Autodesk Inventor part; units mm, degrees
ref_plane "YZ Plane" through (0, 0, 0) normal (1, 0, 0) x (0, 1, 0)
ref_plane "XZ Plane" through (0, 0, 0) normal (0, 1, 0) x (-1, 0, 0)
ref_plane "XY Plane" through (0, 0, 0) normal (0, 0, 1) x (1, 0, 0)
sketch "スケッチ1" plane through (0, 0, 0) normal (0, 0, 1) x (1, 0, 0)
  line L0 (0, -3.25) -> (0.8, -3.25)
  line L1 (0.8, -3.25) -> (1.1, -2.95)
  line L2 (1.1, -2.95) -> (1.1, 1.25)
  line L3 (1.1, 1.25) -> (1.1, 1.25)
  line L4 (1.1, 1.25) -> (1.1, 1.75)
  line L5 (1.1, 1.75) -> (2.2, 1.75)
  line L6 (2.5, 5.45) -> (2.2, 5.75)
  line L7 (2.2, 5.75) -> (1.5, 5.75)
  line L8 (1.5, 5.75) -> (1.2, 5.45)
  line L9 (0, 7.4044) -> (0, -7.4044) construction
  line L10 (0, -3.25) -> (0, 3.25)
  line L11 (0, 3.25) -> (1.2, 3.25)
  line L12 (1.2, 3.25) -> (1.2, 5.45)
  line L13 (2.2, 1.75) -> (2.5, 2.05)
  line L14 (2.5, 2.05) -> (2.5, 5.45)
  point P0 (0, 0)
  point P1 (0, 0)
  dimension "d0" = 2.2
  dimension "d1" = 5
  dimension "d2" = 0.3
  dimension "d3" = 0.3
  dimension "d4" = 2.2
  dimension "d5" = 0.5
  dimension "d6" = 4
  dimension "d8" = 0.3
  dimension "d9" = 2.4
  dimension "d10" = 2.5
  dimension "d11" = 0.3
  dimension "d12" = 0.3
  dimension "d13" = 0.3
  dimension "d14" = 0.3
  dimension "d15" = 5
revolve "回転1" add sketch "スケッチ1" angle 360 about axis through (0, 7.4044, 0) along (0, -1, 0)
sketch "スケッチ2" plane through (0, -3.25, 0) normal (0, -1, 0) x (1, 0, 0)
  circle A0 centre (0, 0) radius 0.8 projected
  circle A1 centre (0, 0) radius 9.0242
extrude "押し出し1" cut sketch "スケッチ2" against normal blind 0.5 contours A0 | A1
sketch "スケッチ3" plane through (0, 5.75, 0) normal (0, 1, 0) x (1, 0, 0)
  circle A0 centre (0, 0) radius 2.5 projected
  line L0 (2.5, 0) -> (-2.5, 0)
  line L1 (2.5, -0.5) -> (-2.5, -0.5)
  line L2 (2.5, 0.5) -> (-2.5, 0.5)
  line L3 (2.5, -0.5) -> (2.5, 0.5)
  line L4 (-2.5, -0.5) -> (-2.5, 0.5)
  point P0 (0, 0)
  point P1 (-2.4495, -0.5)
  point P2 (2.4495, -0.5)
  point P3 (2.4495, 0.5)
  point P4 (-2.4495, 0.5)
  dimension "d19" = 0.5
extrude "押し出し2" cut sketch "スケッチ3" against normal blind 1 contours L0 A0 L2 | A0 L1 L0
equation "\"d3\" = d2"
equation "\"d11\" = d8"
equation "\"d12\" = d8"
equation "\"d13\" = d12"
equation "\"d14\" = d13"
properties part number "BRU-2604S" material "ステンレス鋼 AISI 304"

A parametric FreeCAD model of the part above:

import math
import FreeCAD as App
import Part
import Sketcher


def add_polygon(sketch, points):
    """Adds a closed chain of lines whose ends are joined by coincident constraints."""
    first, n = sketch.GeometryCount, len(points)
    for a, b in zip(points, points[1:] + points[:1]):
        sketch.addGeometry(Part.LineSegment(App.Vector(*a, 0), App.Vector(*b, 0)), False)
    for i in range(n):
        sketch.addConstraint(Sketcher.Constraint("Coincident", first + i, 2, first + (i + 1) % n, 1))

doc = App.newDocument("Part")
params = doc.addObject("Spreadsheet::Sheet", "Params")
for row, (alias, value) in enumerate([
    ("sketch1_height", "2.2 mm"),
    ("sketch1_width", "0.8 mm"),
    ("sketch1_width2", "0.7 mm"),
    ("revolution_angle", "360 deg"),
    ("pocket1_length", "0.5 mm"),
    ("sketch3_radius", "2.5 mm"),
    ("pocket2_length", "1 mm"),
], start=1):
    params.set(f"A{row}", alias)
    params.set(f"B{row}", "=" + value)
    params.setAlias(f"B{row}", alias)

body = doc.addObject("PartDesign::Body", "Body")

sketch1 = body.newObject("Sketcher::SketchObject", "Sketch")
sketch1.AttachmentSupport = (doc.getObject("XY_Plane"), [""])
sketch1.MapMode = "FlatFace"
add_polygon(sketch1, [(0, 3.25), (0, -3.25), (0.8, -3.25), (1.1, -2.95), (1.1, 1.75), (2.2, 1.75), (2.5, 2.05), (2.5, 5.45), (2.2, 5.75), (1.5, 5.75), (1.2, 5.45), (1.2, 3.25)])
sketch1.addConstraint([
    Sketcher.Constraint("Vertical", 0),
    Sketcher.Constraint("Horizontal", 1),
    Sketcher.Constraint("Vertical", 3),
    Sketcher.Constraint("Horizontal", 4),
    Sketcher.Constraint("Vertical", 6),
    Sketcher.Constraint("Horizontal", 8),
    Sketcher.Constraint("Vertical", 10),
    Sketcher.Constraint("Horizontal", 11),
    Sketcher.Constraint("Symmetric", 0, 2, 11, 2, -1, 1),
    Sketcher.Constraint("Parallel", 2, 5),
    Sketcher.Constraint("Perpendicular", 5, 7),
    Sketcher.Constraint("Perpendicular", 7, 9),
    Sketcher.Constraint("Horizontal", 6, 2, 9, 2),
    Sketcher.Constraint("Vertical", 4, 2, 7, 2),
    Sketcher.Constraint("Equal", 2, 5),
    Sketcher.Constraint("Equal", 5, 7),
    Sketcher.Constraint("DistanceY", 10, 2, 10, 1, 2.2),
    Sketcher.Constraint("DistanceY", 1, 2, 3, 2, 5.0),
    Sketcher.Constraint("DistanceY", 4, 2, 7, 2, 4.0),
    Sketcher.Constraint("DistanceX", -1, 1, 4, 2, 2.2),
    Sketcher.Constraint("DistanceX", -1, 1, 5, 2, 2.5),
    Sketcher.Constraint("DistanceX", 1, 1, 1, 2, 0.8),
    Sketcher.Constraint("DistanceX", 8, 2, 8, 1, 0.7),
])
sketch1.setExpression("Constraints[28]", "Params.sketch1_height")
sketch1.setExpression("Constraints[33]", "Params.sketch1_width")
sketch1.setExpression("Constraints[34]", "Params.sketch1_width2")
revolution = body.newObject("PartDesign::Revolution", "Revolution")
revolution.Profile = sketch1
revolution.ReferenceAxis = (sketch1, ["V_Axis"])
revolution.setExpression("Angle", "Params.revolution_angle")

sketch2 = body.newObject("Sketcher::SketchObject", "Sketch001")
sketch2.AttachmentSupport = (doc.getObject("XZ_Plane"), [""])
sketch2.MapMode = "FlatFace"
sketch2.AttachmentOffset = App.Placement(App.Vector(0, 0, 3.25), App.Rotation())
sketch2.addGeometry(Part.Circle(App.Vector(0, 0, 0), App.Vector(0, 0, 1), 9), False)
sketch2.addConstraint([
    Sketcher.Constraint("Coincident", 0, 3, -1, 1),
    Sketcher.Constraint("Diameter", 0, 18.0484),
])
pocket1 = body.newObject("PartDesign::Pocket", "Pocket")
pocket1.Profile = sketch2
pocket1.setExpression("Length", "Params.pocket1_length")

sketch3 = body.newObject("Sketcher::SketchObject", "Sketch002")
sketch3.AttachmentSupport = (doc.getObject("XZ_Plane"), [""])
sketch3.MapMode = "FlatFace"
sketch3.AttachmentOffset = App.Placement(App.Vector(0, 0, -5.75), App.Rotation())
sketch3.addGeometry([
    Part.ArcOfCircle(Part.Circle(App.Vector(0, 0, 0), App.Vector(0, 0, 1), 2.5), math.radians(168), math.radians(192)),
    Part.LineSegment(App.Vector(-2.4, 0.5, 0), App.Vector(2.4, 0.5, 0)),
    Part.ArcOfCircle(Part.Circle(App.Vector(0, 0, 0), App.Vector(0, 0, 1), 2.5), math.radians(-12), math.radians(12)),
    Part.LineSegment(App.Vector(2.4, -0.5, 0), App.Vector(-2.4, -0.5, 0)),
], False)
sketch3.addConstraint([
    Sketcher.Constraint("Coincident", 0, 1, 1, 1),
    Sketcher.Constraint("Coincident", 1, 2, 2, 2),
    Sketcher.Constraint("Coincident", 2, 1, 3, 1),
    Sketcher.Constraint("Coincident", 3, 2, 0, 2),
    Sketcher.Constraint("Horizontal", 1),
    Sketcher.Constraint("Horizontal", 3),
    Sketcher.Constraint("Coincident", 0, 3, -1, 1),
    Sketcher.Constraint("Coincident", 2, 3, -1, 1),
    Sketcher.Constraint("Equal", 0, 2),
    Sketcher.Constraint("Vertical", 1, 2, 2, 1),
    Sketcher.Constraint("DistanceY", -1, 1, 0, 1, 0.5),
    Sketcher.Constraint("Radius", 0, 2.5),
])
sketch3.setExpression("Constraints[11]", "Params.sketch3_radius")
pocket2 = body.newObject("PartDesign::Pocket", "Pocket001")
pocket2.Profile = sketch3
pocket2.setExpression("Length", "Params.pocket2_length")
pocket2.Reversed = True

doc.recompute()
